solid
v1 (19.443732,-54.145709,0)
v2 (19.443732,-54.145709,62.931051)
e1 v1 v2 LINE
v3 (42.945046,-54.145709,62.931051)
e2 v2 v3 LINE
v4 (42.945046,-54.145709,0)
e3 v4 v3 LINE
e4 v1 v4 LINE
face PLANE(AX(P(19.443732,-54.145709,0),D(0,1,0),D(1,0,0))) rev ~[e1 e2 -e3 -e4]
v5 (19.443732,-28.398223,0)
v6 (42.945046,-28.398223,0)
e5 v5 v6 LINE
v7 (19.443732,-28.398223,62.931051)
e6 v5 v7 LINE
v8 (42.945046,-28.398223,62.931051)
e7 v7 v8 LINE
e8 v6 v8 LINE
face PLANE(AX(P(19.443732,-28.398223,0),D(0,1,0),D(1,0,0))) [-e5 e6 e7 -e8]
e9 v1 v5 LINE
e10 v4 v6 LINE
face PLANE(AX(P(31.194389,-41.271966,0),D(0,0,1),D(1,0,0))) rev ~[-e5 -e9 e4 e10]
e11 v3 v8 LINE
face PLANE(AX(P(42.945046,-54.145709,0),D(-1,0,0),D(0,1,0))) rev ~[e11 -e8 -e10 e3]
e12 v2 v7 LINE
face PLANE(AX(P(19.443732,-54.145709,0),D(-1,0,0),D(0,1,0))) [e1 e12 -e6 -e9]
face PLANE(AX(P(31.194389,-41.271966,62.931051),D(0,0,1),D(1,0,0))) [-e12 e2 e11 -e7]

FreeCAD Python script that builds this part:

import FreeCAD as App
import Part
import Sketcher

V = App.Vector

doc = App.newDocument("Part")
params = doc.addObject("Spreadsheet::Sheet", "Params")
for row, (alias, value) in enumerate([
    ("pad1_length", "62.931051 mm"),
], start=1):
    params.set(f"A{row}", alias)
    params.set(f"B{row}", "=" + value)
    params.setAlias(f"B{row}", alias)

body = doc.addObject("PartDesign::Body", "Body")

# Sketch on XY plane
sketch1 = body.newObject("Sketcher::SketchObject", "Sketch")
sketch1.AttachmentSupport = (doc.getObject("XY_Plane"), [""])
sketch1.MapMode = "FlatFace"
sketch1.addGeometry([
    Part.LineSegment(V(19, -28, 0), V(19, -54, 0)),
    Part.LineSegment(V(19, -54, 0), V(43, -54, 0)),
    Part.LineSegment(V(43, -54, 0), V(43, -28, 0)),
    Part.LineSegment(V(43, -28, 0), V(19, -28, 0)),
], False)
sketch1.addConstraint([
    Sketcher.Constraint("Coincident", 0, 2, 1, 1),
    Sketcher.Constraint("Coincident", 1, 2, 2, 1),
    Sketcher.Constraint("Coincident", 2, 2, 3, 1),
    Sketcher.Constraint("Coincident", 3, 2, 0, 1),
    Sketcher.Constraint("Vertical", 0),
    Sketcher.Constraint("Horizontal", 1),
    Sketcher.Constraint("Vertical", 2),
    Sketcher.Constraint("Horizontal", 3),
    Sketcher.Constraint("DistanceX", 1, 1, 1, 2, 23.501314),
    Sketcher.Constraint("DistanceY", 0, 2, 0, 1, 25.747486),
    Sketcher.Constraint("DistanceY", 0, 2, -1, 1, 54.145709),
    Sketcher.Constraint("DistanceX", -1, 1, 0, 2, 19.443732),
])
pad1 = body.newObject("PartDesign::Pad", "Pad")
pad1.Profile = sketch1
pad1.setExpression("Length", "Params.pad1_length")

doc.recompute()
